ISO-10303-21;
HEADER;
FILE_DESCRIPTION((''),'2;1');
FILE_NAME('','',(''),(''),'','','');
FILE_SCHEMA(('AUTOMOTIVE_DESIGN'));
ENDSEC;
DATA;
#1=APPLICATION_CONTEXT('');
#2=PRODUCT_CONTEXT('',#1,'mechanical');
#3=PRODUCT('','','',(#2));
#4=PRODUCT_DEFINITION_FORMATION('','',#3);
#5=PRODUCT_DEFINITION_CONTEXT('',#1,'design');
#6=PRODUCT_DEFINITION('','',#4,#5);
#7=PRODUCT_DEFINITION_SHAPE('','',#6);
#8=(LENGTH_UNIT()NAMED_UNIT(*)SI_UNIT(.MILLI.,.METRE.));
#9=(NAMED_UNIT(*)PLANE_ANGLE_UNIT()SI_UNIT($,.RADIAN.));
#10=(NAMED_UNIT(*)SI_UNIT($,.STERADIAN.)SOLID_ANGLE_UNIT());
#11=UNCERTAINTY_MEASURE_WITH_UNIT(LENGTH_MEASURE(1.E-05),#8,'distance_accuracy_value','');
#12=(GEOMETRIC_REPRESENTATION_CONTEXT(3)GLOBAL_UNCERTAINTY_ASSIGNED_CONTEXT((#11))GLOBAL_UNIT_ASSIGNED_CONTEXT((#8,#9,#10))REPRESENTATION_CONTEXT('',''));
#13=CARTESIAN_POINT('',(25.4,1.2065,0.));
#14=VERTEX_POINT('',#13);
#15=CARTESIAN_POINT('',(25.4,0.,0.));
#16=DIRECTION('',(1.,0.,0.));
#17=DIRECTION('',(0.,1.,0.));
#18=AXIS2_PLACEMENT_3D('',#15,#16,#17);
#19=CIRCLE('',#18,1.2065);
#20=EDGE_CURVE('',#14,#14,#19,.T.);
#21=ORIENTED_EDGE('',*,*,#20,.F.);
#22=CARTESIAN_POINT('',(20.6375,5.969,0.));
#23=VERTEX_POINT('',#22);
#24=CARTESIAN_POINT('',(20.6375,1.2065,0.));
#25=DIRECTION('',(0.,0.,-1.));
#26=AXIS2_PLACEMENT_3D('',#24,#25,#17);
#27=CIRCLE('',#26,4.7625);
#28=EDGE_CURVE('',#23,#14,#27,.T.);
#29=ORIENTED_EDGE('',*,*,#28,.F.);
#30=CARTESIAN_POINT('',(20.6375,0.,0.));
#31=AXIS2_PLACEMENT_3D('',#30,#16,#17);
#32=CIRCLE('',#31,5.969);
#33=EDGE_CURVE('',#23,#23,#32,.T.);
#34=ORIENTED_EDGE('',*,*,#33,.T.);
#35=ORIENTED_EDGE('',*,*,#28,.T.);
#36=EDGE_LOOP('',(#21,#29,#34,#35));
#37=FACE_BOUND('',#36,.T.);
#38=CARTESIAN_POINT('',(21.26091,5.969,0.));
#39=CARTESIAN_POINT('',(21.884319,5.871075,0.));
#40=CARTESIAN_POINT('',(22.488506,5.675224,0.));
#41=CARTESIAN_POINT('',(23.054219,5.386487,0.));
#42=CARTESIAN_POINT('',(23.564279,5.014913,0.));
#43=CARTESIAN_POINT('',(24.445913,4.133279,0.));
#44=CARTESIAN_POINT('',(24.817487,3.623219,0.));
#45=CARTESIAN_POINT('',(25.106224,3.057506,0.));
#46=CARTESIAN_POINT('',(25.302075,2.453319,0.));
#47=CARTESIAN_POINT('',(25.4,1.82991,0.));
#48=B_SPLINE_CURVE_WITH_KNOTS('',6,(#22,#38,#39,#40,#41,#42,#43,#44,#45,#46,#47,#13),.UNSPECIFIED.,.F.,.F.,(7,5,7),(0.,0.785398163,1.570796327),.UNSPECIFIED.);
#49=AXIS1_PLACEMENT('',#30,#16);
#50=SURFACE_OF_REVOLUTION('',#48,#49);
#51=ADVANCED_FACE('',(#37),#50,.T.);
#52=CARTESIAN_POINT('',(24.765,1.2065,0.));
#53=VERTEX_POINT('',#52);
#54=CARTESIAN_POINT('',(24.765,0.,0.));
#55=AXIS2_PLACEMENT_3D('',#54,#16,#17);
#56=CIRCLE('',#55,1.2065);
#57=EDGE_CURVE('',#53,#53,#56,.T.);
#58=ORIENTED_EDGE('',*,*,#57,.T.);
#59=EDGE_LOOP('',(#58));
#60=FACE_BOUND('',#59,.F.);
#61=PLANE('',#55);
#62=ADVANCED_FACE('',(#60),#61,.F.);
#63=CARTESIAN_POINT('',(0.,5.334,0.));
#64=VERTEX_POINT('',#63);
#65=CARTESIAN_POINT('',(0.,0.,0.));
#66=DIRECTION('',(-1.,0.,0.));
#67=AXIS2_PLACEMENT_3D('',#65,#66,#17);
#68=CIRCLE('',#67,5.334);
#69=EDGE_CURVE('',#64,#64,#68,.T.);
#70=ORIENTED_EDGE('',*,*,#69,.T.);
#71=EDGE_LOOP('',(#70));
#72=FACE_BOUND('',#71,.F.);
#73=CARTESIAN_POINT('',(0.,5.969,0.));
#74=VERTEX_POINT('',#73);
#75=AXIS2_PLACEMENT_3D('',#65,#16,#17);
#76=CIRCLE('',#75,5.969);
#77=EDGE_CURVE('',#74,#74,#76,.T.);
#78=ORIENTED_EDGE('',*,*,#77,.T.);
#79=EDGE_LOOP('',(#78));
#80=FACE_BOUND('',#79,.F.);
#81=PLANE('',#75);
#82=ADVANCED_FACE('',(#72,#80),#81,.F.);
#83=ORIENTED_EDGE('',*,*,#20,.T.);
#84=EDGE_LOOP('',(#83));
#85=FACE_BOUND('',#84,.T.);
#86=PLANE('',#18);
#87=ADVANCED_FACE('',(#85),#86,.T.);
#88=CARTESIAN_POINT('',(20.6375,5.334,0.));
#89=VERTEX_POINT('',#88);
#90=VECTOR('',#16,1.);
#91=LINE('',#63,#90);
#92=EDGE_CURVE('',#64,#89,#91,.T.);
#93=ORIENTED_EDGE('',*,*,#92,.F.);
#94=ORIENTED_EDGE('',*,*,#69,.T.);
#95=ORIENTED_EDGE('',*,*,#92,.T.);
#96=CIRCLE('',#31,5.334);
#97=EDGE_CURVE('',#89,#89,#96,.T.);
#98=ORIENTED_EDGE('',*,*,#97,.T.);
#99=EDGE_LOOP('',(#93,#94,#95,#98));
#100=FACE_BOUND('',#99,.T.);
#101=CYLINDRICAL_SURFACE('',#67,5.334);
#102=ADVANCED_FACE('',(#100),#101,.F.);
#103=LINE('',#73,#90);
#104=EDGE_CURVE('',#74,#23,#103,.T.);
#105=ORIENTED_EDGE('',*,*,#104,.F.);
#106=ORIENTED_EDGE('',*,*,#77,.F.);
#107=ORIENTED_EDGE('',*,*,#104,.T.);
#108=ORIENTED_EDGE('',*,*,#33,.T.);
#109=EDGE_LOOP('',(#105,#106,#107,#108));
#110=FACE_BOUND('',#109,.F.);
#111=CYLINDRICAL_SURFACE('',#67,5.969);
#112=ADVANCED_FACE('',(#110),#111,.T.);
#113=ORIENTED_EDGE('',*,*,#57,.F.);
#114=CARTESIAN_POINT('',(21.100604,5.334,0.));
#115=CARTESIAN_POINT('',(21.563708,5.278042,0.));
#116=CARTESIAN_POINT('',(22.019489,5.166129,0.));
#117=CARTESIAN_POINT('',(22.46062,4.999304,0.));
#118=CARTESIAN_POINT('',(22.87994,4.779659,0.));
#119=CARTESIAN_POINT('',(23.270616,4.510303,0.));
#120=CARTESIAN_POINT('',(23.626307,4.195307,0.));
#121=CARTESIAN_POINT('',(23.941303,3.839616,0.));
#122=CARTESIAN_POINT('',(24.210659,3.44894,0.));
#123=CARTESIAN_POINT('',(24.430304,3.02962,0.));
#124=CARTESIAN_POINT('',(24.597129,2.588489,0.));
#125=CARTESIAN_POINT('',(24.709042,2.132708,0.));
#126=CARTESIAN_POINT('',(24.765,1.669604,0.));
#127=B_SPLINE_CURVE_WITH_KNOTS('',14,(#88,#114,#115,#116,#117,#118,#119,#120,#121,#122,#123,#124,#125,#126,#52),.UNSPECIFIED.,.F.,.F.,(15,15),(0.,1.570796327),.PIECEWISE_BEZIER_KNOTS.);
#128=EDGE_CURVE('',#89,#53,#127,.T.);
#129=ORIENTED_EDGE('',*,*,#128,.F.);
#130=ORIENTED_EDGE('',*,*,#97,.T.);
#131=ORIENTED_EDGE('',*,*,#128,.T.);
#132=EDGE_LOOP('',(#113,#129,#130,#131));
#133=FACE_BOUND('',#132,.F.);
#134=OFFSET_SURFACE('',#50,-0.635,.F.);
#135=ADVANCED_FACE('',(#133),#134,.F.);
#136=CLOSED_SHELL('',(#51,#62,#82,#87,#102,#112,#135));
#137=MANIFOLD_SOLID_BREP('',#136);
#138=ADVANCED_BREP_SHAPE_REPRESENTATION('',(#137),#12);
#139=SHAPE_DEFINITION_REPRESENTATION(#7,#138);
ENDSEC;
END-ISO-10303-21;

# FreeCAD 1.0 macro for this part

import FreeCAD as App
import Part
import Sketcher

V = App.Vector
Q = App.Units.Quantity


def edges_at(feature, points):
    """Names of the edges that pass closest to the given points."""
    edges = feature.Shape.Edges
    near = lambda p: min(range(len(edges)), key=lambda i: edges[i].distToShape(Part.Vertex(*p))[0])
    return sorted({f"Edge{near(p) + 1}" for p in points})


def faces_at(feature, points):
    """Names of the faces that lie closest to the given points."""
    faces = feature.Shape.Faces
    near = lambda p: min(range(len(faces)), key=lambda i: faces[i].distToShape(Part.Vertex(*p))[0])
    return sorted({f"Face{near(p) + 1}" for p in points})

doc = App.newDocument("Part")
body = doc.addObject("PartDesign::Body", "Body")

# Sketch on YZ plane
sketch1 = doc.addObject("Sketcher::SketchObject", "Sketch")
body.addObject(sketch1)
sketch1.AttachmentSupport = (doc.YZ_Plane, [""])
sketch1.MapMode = "FlatFace"
sketch1.addGeometry(Part.Circle(V(0, 0, 0), V(0, 0, 1), 6), False)
sketch1.addConstraint([
    Sketcher.Constraint("Coincident", 0, 3, -1, 1),
    Sketcher.Constraint("Diameter", 0, Q("0.47 in")),
])
pad1 = doc.addObject("PartDesign::Pad", "Pad")
body.addObject(pad1)
pad1.Profile = sketch1
pad1.Length = Q("1 in")
doc.recompute()

fillet = doc.addObject("PartDesign::Fillet", "Fillet")
body.addObject(fillet)
fillet.Base = (pad1, edges_at(pad1, [(25.4, -5.969, 0)]))
fillet.Radius = Q("0.1875 in")
doc.recompute()

thickness = doc.addObject("PartDesign::Thickness", "Thickness")
body.addObject(thickness)
thickness.Base = (fillet, faces_at(fillet, [(0, -1.969, -1.319)]))
thickness.Value = Q("0.025 in")
thickness.Reversed = True
thickness.Join = "Intersection"

doc.recompute()
